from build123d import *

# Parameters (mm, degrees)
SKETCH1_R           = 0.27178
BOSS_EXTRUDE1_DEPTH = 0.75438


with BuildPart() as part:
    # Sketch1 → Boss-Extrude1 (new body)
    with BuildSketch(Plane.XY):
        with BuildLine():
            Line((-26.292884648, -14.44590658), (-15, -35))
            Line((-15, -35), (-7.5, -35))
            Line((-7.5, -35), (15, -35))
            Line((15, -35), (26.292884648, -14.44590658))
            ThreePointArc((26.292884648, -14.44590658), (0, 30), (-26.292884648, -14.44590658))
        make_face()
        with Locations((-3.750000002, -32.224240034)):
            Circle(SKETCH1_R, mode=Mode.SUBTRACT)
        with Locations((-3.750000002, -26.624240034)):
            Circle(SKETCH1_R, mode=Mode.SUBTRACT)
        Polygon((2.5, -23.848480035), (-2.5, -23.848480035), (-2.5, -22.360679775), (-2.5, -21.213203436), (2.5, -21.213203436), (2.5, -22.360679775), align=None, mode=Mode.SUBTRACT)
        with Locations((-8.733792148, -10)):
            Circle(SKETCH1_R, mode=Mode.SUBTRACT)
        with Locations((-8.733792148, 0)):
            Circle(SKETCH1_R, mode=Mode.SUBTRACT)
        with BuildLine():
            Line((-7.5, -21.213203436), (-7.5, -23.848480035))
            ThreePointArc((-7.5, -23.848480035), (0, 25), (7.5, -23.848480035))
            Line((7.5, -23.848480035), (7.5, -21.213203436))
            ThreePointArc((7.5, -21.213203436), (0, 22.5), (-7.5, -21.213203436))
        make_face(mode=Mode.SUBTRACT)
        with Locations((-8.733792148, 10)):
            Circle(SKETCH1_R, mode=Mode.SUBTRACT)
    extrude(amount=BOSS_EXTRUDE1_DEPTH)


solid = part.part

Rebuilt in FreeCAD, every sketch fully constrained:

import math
import FreeCAD as App
import Part
import Sketcher
from FreeCAD import Vector

doc = App.newDocument("Part")
params = doc.addObject("Spreadsheet::Sheet", "Params")
for row, (alias, value) in enumerate([
    ("sketch1_radius", "30 mm"),
    ("sketch1_radius2", "25 mm"),
    ("sketch1_radius3", "22.5 mm"),
    ("sketch1_width", "30 mm"),
    ("sketch1_width2", "5 mm"),
    ("pad1_length", "0.75438 mm"),
], start=1):
    params.set(f"A{row}", alias)
    params.set(f"B{row}", "=" + value)
    params.setAlias(f"B{row}", alias)

body = doc.addObject("PartDesign::Body", "Body")

# Sketch on XY plane
sketch1 = body.newObject("Sketcher::SketchObject", "Sketch")
sketch1.AttachmentSupport = (doc.getObject("XY_Plane"), [""])
sketch1.MapMode = "FlatFace"
sketch1.addGeometry([
    Part.LineSegment(Vector(-26.29, -14.45, 0), Vector(-15, -35, 0)),  # 0
    Part.LineSegment(Vector(-15, -35, 0), Vector(15, -35, 0)),  # 1
    Part.LineSegment(Vector(15, -35, 0), Vector(26.29, -14.45, 0)),  # 2
    Part.ArcOfCircle(Part.Circle(Vector(0, 0, 0), Vector(0, 0, 1), 30), math.radians(-29), math.radians(209)),  # 3
    Part.Circle(Vector(-3.75, -32.22, 0), Vector(0, 0, 1), 0.27),  # 4
    Part.Circle(Vector(-3.75, -26.62, 0), Vector(0, 0, 1), 0.27),  # 5
    Part.LineSegment(Vector(2.5, -21.21, 0), Vector(2.5, -23.85, 0)),  # 6
    Part.LineSegment(Vector(2.5, -23.85, 0), Vector(-2.5, -23.85, 0)),  # 7
    Part.LineSegment(Vector(-2.5, -23.85, 0), Vector(-2.5, -21.21, 0)),  # 8
    Part.LineSegment(Vector(-2.5, -21.21, 0), Vector(2.5, -21.21, 0)),  # 9
    Part.Circle(Vector(-8.73, -10, 0), Vector(0, 0, 1), 0.27),  # 10
    Part.Circle(Vector(-8.73, 0, 0), Vector(0, 0, 1), 0.27),  # 11
    Part.ArcOfCircle(Part.Circle(Vector(0, 0, 0), Vector(0, 0, 1), 22.5), math.radians(-71), math.radians(251)),  # 12
    Part.LineSegment(Vector(-7.5, -21.21, 0), Vector(-7.5, -23.85, 0)),  # 13
    Part.ArcOfCircle(Part.Circle(Vector(0, 0, 0), Vector(0, 0, 1), 25), math.radians(-73), math.radians(253)),  # 14
    Part.LineSegment(Vector(7.5, -23.85, 0), Vector(7.5, -21.21, 0)),  # 15
    Part.Circle(Vector(-8.73, 10, 0), Vector(0, 0, 1), 0.27),  # 16
], False)
sketch1.addConstraint([
    Sketcher.Constraint("Coincident", 0, 2, 1, 1),
    Sketcher.Constraint("Coincident", 1, 2, 2, 1),
    Sketcher.Constraint("Tangent", 2, 2, 3, 1),
    Sketcher.Constraint("Tangent", 3, 2, 0, 1),
    Sketcher.Constraint("Coincident", 6, 2, 7, 1),
    Sketcher.Constraint("Coincident", 7, 2, 8, 1),
    Sketcher.Constraint("Coincident", 8, 2, 9, 1),
    Sketcher.Constraint("Coincident", 9, 2, 6, 1),
    Sketcher.Constraint("Coincident", 12, 2, 13, 1),
    Sketcher.Constraint("Coincident", 13, 2, 14, 2),
    Sketcher.Constraint("Coincident", 14, 1, 15, 1),
    Sketcher.Constraint("Coincident", 15, 2, 12, 1),
    Sketcher.Constraint("Horizontal", 1),
    Sketcher.Constraint("Vertical", 6),
    Sketcher.Constraint("Horizontal", 7),
    Sketcher.Constraint("Vertical", 8),
    Sketcher.Constraint("Horizontal", 9),
    Sketcher.Constraint("Vertical", 13),
    Sketcher.Constraint("Vertical", 15),
    Sketcher.Constraint("Coincident", 3, 3, -1, 1),
    Sketcher.Constraint("Coincident", 12, 3, -1, 1),
    Sketcher.Constraint("Coincident", 14, 3, -1, 1),
    Sketcher.Constraint("Equal", 4, 5),
    Sketcher.Constraint("Equal", 5, 10),
    Sketcher.Constraint("Equal", 10, 11),
    Sketcher.Constraint("Equal", 11, 16),
    Sketcher.Constraint("Symmetric", 10, 3, 16, 3, -1),
    Sketcher.Constraint("PointOnObject", 11, 3, -1),
    Sketcher.Constraint("Horizontal", 2, 2, 3, 2),
    Sketcher.Constraint("Horizontal", 9, 2, 12, 2),
    Sketcher.Constraint("Horizontal", 7, 2, 13, 2),
    Sketcher.Constraint("Horizontal", 13, 2, 14, 1),
    Sketcher.Constraint("Vertical", 4, 3, 5, 3),
    Sketcher.Constraint("Vertical", 10, 3, 11, 3),
    Sketcher.Constraint("Radius", 3, 30.0),
    Sketcher.Constraint("Radius", 14, 25.0),
    Sketcher.Constraint("Radius", 12, 22.5),
    Sketcher.Constraint("DistanceX", 1, 1, 1, 2, 30.0),
    Sketcher.Constraint("DistanceX", 7, 2, 7, 1, 5.0),
    Sketcher.Constraint("DistanceY", 10, 3, -1, 1, 10.0),
    Sketcher.Constraint("DistanceY", 0, 2, -1, 1, 35.0),
    Sketcher.Constraint("DistanceX", 12, 2, 8, 2, 5.0),
    Sketcher.Constraint("DistanceX", 6, 2, 14, 1, 5.0),
    Sketcher.Constraint("DistanceY", 4, 3, 5, 3, 5.6),
    Sketcher.Constraint("Diameter", 4, 0.54356),
    Sketcher.Constraint("DistanceX", 4, 3, -1, 1, 3.75),
    Sketcher.Constraint("DistanceY", 4, 3, -1, 1, 32.22424),
    Sketcher.Constraint("DistanceX", 10, 3, -1, 1, 8.733792),
])
sketch1.setExpression("Constraints[34]", "Params.sketch1_radius")
sketch1.setExpression("Constraints[35]", "Params.sketch1_radius2")
sketch1.setExpression("Constraints[36]", "Params.sketch1_radius3")
sketch1.setExpression("Constraints[37]", "Params.sketch1_width")
sketch1.setExpression("Constraints[38]", "Params.sketch1_width2")
pad1 = body.newObject("PartDesign::Pad", "Pad")
pad1.Profile = sketch1
pad1.setExpression("Length", "Params.pad1_length")

doc.recompute()
